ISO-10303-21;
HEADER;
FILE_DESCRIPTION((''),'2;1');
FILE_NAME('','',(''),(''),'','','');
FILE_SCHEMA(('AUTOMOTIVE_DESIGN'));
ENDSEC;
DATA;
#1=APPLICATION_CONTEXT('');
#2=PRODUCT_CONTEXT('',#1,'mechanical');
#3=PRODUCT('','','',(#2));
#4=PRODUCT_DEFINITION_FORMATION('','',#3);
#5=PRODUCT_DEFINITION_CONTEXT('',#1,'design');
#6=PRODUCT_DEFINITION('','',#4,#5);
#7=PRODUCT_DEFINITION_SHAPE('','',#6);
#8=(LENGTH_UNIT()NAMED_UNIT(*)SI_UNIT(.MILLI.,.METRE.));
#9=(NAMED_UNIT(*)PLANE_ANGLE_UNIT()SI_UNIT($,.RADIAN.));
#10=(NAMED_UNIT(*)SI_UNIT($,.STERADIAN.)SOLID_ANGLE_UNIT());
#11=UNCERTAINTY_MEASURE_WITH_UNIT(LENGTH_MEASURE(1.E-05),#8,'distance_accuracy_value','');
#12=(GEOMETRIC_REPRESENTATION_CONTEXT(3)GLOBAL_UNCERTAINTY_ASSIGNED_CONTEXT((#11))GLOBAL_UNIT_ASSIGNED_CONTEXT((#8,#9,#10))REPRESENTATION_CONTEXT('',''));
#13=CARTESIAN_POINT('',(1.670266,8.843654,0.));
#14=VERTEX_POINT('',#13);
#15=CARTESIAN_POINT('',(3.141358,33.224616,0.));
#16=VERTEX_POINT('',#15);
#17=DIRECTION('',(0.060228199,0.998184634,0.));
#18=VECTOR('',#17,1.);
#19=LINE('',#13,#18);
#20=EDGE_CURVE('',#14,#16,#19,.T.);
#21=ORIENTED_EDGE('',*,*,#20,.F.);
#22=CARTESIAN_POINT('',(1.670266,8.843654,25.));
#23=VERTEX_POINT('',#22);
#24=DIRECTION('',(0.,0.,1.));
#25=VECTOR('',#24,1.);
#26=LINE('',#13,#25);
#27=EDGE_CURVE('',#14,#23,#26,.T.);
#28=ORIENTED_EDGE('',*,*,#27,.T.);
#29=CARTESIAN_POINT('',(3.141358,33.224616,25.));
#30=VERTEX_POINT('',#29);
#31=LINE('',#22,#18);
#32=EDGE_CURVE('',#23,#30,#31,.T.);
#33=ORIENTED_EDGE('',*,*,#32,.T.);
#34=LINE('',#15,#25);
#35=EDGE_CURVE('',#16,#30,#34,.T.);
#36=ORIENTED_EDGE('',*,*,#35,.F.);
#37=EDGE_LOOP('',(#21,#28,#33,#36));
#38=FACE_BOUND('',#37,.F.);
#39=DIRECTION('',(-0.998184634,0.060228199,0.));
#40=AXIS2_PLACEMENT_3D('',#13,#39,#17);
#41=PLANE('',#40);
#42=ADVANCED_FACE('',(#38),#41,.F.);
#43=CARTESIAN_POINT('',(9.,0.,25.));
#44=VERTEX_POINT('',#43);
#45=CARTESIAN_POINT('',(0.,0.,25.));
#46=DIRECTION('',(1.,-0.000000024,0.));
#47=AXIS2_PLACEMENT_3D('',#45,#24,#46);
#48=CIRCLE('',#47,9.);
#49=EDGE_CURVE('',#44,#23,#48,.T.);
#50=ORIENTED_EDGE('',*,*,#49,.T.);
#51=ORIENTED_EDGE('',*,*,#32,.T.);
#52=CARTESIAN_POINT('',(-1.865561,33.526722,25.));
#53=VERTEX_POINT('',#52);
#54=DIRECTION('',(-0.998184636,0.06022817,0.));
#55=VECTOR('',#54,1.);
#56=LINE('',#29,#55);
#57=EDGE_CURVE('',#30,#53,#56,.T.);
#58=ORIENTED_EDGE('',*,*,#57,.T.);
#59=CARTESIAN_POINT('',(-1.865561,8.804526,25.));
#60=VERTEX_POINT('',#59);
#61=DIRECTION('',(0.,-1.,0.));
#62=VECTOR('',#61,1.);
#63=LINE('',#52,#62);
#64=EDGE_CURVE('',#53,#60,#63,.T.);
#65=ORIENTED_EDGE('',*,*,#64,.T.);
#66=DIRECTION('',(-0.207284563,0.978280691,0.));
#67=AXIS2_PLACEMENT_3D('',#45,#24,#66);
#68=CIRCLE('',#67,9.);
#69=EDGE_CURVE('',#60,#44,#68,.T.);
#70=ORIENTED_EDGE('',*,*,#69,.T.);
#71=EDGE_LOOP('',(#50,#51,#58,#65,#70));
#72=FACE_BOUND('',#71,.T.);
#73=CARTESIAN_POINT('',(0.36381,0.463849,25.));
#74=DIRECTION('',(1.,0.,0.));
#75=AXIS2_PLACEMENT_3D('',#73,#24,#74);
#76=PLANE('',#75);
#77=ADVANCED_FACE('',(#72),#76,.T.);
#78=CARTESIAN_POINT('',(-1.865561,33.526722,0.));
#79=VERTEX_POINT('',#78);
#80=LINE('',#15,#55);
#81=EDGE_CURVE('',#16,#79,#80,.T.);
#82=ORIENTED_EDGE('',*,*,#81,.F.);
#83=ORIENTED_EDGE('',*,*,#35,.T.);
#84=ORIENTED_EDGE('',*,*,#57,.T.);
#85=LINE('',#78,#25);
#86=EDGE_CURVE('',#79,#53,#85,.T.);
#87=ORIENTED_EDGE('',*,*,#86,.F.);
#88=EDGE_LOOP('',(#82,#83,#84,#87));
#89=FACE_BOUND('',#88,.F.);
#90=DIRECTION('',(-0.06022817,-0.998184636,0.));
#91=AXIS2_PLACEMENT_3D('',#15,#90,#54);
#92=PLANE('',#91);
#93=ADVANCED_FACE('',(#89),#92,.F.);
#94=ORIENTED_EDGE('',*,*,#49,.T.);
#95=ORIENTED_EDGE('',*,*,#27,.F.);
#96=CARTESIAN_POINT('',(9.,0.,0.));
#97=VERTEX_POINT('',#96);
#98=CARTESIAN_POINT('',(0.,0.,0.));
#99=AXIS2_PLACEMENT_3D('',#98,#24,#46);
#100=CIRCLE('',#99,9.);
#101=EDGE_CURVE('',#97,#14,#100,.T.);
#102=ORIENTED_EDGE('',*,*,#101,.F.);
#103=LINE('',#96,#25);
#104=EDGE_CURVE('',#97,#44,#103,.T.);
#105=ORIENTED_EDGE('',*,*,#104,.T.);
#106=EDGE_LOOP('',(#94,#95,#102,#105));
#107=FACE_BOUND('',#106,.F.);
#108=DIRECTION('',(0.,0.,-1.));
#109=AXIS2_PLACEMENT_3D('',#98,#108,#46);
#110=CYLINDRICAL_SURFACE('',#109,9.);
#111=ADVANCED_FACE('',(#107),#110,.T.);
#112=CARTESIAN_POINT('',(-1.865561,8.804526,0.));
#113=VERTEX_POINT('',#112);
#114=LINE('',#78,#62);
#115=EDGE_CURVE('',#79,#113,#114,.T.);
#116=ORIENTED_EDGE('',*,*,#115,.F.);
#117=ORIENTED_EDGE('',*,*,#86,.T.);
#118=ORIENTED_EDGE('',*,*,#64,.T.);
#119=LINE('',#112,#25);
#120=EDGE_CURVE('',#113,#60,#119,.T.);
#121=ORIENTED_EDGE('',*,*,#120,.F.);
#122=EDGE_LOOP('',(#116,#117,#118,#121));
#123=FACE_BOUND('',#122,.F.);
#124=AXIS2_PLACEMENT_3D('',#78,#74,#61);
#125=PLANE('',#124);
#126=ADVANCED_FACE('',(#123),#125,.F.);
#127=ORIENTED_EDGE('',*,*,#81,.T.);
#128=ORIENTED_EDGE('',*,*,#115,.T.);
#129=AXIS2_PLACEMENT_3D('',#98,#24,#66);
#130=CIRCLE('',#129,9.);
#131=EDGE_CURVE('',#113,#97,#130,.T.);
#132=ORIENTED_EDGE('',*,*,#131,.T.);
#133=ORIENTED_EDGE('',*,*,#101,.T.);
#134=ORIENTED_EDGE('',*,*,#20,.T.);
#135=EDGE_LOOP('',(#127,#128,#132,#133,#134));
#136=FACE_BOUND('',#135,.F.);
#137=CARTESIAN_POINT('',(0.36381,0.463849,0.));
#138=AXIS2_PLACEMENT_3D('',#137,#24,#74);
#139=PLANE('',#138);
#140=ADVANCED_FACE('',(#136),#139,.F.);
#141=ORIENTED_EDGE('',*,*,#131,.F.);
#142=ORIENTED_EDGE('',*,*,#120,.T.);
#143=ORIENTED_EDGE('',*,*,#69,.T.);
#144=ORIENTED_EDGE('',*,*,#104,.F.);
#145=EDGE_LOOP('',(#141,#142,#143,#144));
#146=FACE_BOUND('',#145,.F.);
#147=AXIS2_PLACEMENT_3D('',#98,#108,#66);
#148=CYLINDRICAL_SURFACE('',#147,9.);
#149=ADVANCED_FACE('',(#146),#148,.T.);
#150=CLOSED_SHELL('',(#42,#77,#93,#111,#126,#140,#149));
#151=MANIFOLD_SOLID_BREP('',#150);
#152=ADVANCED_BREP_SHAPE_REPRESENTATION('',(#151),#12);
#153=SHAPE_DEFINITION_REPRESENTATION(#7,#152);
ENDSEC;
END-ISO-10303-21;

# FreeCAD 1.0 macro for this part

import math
import FreeCAD as App
import Part
import Sketcher

V = App.Vector

doc = App.newDocument("Part")
body = doc.addObject("PartDesign::Body", "Body")

sketch1 = body.newObject("Sketcher::SketchObject", "Sketch")
sketch1.AttachmentSupport = (doc.getObject("XY_Plane"), [""])
sketch1.MapMode = "FlatFace"
sketch1.addGeometry(Part.ArcOfCircle(Part.Circle(V(0, 0, 0), V(0, 0, 1), 9), math.radians(0), math.radians(79)), False)
sketch1.addGeometry(Part.LineSegment(V(2, 9, 0), V(3, 33, 0)), False)
sketch1.addGeometry(Part.LineSegment(V(3, 33, 0), V(-2, 34, 0)), False)
sketch1.addGeometry(Part.LineSegment(V(-2, 34, 0), V(-2, 9, 0)), False)
sketch1.addGeometry(Part.ArcOfCircle(Part.Circle(V(0, 0, 0), V(0, 0, 1), 9), math.radians(102), math.radians(360)), False)
sketch1.addConstraint(Sketcher.Constraint("Coincident", 0, 2, 1, 1))
sketch1.addConstraint(Sketcher.Constraint("Coincident", 1, 2, 2, 1))
sketch1.addConstraint(Sketcher.Constraint("Coincident", 2, 2, 3, 1))
sketch1.addConstraint(Sketcher.Constraint("Coincident", 3, 2, 4, 1))
sketch1.addConstraint(Sketcher.Constraint("Tangent", 4, 2, 0, 1))
sketch1.addConstraint(Sketcher.Constraint("Vertical", 3))
sketch1.addConstraint(Sketcher.Constraint("Coincident", 0, 3, -1, 1))
sketch1.addConstraint(Sketcher.Constraint("Equal", 0, 4))
sketch1.addConstraint(Sketcher.Constraint("PointOnObject", 4, 2, -1))
sketch1.addConstraint(Sketcher.Constraint("Perpendicular", 1, 2))
sketch1.addConstraint(Sketcher.Constraint("Radius", 0, 9.0))
sketch1.addConstraint(Sketcher.Constraint("DistanceY", 3, 2, 3, 1, 24.722196))
sketch1.addConstraint(Sketcher.Constraint("DistanceX", 2, 2, -1, 1, 1.865561))
sketch1.addConstraint(Sketcher.Constraint("DistanceX", 0, 2, 1, 2, 1.471092))
sketch1.addConstraint(Sketcher.Constraint("DistanceY", 0, 2, 1, 2, 24.380962))
pad1 = body.newObject("PartDesign::Pad", "Pad")
pad1.Profile = sketch1
pad1.Length = 25

doc.recompute()
